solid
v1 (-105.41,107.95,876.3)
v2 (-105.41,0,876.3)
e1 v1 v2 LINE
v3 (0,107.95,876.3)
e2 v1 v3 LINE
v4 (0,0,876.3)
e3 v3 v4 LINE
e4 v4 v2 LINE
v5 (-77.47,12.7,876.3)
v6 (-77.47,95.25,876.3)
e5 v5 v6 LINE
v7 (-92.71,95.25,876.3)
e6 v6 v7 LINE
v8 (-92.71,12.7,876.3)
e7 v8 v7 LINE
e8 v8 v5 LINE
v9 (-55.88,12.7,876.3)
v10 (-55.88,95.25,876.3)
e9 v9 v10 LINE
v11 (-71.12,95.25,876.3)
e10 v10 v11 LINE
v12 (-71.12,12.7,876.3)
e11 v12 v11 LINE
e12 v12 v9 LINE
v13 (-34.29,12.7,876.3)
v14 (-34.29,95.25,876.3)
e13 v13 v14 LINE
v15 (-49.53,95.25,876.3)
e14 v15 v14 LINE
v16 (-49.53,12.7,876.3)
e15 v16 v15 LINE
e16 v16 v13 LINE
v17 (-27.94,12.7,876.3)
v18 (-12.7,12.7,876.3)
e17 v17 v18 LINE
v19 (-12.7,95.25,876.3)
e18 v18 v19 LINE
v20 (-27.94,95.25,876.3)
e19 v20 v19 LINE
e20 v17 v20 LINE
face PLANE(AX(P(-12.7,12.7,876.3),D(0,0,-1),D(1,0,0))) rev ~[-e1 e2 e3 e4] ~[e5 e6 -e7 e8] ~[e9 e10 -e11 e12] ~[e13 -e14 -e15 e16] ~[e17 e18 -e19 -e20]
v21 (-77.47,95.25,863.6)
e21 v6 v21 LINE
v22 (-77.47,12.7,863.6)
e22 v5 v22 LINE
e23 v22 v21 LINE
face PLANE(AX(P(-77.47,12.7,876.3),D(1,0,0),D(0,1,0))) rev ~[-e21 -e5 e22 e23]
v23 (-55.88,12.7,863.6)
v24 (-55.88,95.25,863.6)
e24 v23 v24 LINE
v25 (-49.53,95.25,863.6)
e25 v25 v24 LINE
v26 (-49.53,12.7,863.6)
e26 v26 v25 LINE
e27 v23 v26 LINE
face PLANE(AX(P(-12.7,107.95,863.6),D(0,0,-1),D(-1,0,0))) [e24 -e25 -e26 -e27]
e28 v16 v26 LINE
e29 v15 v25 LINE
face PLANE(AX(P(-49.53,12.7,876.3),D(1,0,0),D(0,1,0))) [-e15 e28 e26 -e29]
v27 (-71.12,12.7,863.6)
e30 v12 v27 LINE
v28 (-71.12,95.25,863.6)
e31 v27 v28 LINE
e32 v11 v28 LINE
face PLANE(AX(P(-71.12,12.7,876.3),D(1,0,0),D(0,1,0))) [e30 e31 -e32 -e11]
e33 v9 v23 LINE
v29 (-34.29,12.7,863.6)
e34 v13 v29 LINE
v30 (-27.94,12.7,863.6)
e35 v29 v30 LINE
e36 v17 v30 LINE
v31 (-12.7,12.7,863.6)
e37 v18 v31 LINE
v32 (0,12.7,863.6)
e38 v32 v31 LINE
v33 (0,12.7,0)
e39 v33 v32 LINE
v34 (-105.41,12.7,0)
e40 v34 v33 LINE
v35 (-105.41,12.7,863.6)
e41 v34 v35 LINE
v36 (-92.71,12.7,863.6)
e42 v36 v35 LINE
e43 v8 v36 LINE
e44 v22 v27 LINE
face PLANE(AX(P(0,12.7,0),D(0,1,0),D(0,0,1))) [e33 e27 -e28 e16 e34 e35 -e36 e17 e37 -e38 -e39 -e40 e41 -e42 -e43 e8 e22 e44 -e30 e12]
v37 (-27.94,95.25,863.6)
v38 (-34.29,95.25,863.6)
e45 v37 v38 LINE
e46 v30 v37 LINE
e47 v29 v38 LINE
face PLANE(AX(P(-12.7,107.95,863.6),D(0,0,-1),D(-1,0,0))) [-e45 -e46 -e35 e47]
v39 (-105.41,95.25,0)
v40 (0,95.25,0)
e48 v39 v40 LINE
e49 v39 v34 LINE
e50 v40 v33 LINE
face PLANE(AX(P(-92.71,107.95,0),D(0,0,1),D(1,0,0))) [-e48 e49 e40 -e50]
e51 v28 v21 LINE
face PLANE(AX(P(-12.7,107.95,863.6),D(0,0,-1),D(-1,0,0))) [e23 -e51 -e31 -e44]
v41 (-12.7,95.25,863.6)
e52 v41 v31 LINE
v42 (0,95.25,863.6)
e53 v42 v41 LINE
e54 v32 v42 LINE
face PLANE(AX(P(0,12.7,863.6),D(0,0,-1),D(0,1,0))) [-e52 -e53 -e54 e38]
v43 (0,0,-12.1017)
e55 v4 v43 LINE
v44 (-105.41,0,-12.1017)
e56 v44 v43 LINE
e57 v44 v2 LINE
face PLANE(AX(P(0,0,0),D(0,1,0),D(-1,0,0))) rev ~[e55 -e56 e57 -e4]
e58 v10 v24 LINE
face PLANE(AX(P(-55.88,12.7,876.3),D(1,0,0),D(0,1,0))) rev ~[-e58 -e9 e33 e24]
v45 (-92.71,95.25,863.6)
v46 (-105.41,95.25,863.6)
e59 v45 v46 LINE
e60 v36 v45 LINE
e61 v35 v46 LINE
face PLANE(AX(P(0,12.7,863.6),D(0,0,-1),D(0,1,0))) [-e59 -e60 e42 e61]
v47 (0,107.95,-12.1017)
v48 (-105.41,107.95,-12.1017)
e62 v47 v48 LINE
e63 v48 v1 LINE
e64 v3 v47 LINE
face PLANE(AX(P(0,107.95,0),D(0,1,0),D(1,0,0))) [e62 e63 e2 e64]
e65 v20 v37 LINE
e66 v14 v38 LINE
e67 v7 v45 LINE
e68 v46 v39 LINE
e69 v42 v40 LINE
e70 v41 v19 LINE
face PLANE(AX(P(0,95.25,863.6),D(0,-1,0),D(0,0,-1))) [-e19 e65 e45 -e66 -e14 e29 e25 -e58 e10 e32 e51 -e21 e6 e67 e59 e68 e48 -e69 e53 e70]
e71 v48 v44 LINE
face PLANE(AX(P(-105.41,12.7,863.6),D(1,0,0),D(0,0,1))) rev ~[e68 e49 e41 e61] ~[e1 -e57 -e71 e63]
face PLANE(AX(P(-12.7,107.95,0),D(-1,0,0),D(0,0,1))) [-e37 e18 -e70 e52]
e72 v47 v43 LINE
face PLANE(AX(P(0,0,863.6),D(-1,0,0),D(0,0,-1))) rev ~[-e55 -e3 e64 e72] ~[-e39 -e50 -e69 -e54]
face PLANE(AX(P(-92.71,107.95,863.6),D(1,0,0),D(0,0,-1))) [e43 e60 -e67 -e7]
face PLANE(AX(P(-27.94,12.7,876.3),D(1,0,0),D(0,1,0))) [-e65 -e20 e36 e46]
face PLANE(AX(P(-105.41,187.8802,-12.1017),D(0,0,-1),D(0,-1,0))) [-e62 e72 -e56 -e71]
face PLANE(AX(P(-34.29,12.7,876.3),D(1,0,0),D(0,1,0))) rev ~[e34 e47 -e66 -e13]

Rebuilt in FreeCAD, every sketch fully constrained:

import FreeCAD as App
import Part
import Sketcher
Q = App.Units.Quantity


def add_polygon(sketch, points):
    """Adds a closed chain of lines whose ends are joined by coincident constraints."""
    first, n = sketch.GeometryCount, len(points)
    for a, b in zip(points, points[1:] + points[:1]):
        sketch.addGeometry(Part.LineSegment(App.Vector(*a, 0), App.Vector(*b, 0)), False)
    for i in range(n):
        sketch.addConstraint(Sketcher.Constraint("Coincident", first + i, 2, first + (i + 1) % n, 1))

doc = App.newDocument("Part")
body = doc.addObject("PartDesign::Body", "Body")
body.AllowCompound = True

# Sketch on XZ plane
sketch1 = body.newObject("Sketcher::SketchObject", "Sketch")
sketch1.AttachmentSupport = (doc.getObject("XZ_Plane"), [""])
sketch1.MapMode = "FlatFace"
add_polygon(sketch1, [(0, 863.6), (0, 0), (-105.41, 0), (-105.41, 863.6)])  # lines 0-3
sketch1.addConstraint(Sketcher.Constraint("Vertical", 0))
sketch1.addConstraint(Sketcher.Constraint("Horizontal", 1))
sketch1.addConstraint(Sketcher.Constraint("Vertical", 2))
sketch1.addConstraint(Sketcher.Constraint("Horizontal", 3))
sketch1.addConstraint(Sketcher.Constraint("Coincident", 0, 2, -1, 1))
sketch1.addConstraint(Sketcher.Constraint("DistanceY", 0, 2, 0, 1, Q("34 in")))
sketch1.addConstraint(Sketcher.Constraint("DistanceX", 1, 2, 1, 1, Q("4.15 in")))
pad1 = body.newObject("PartDesign::Pad", "Pad")
pad1.Profile = sketch1
pad1.Length = Q("0.5 in")
pad1.Reversed = True

# Sketch on XZ plane
sketch2 = body.newObject("Sketcher::SketchObject", "Sketch001")
sketch2.AttachmentSupport = (doc.getObject("XZ_Plane"), [""])
sketch2.MapMode = "FlatFace"
sketch2.AttachmentOffset = App.Placement(App.Vector(0, 0, -0.5 * 25.4), App.Rotation())
add_polygon(sketch2, [(0, -12.7), (-105.41, -12.7), (-105.41, 876.3), (0, 876.3)])  # lines 0-3
add_polygon(sketch2, [(-12.7, 0), (-12.7, 863.6), (-92.71, 863.6), (-92.71, 0)])  # lines 4-7
sketch2.addConstraint(Sketcher.Constraint("Horizontal", 0))
sketch2.addConstraint(Sketcher.Constraint("Vertical", 1))
sketch2.addConstraint(Sketcher.Constraint("Horizontal", 2))
sketch2.addConstraint(Sketcher.Constraint("Vertical", 3))
sketch2.addConstraint(Sketcher.Constraint("Vertical", 4))
sketch2.addConstraint(Sketcher.Constraint("Horizontal", 5))
sketch2.addConstraint(Sketcher.Constraint("Vertical", 6))
sketch2.addConstraint(Sketcher.Constraint("Horizontal", 7))
sketch2.addConstraint(Sketcher.Constraint("PointOnObject", 2, 2, -2))
sketch2.addConstraint(Sketcher.Constraint("PointOnObject", 6, 2, -1))
sketch2.addConstraint(Sketcher.Constraint("DistanceY", 0, 2, -1, 1, Q("0.5 in")))
sketch2.addConstraint(Sketcher.Constraint("DistanceX", 4, 2, -1, 1, Q("0.5 in")))
sketch2.addConstraint(Sketcher.Constraint("DistanceY", 4, 2, 2, 2, Q("0.5 in")))
sketch2.addConstraint(Sketcher.Constraint("DistanceX", 1, 2, 5, 2, Q("0.5 in")))
sketch2.addConstraint(Sketcher.Constraint("DistanceY", 1, 1, 1, 2, Q("35 in")))
sketch2.addConstraint(Sketcher.Constraint("DistanceX", 0, 2, 0, 1, Q("4.15 in")))
pad2 = body.newObject("PartDesign::Pad", "Pad001")
pad2.Profile = sketch2
pad2.Type = "TwoLengths"
pad2.Length = Q("3.75 in")
pad2.Length2 = Q("0.5 in")
pad2.Reversed = True

# Sketch on XY plane
sketch3 = body.newObject("Sketcher::SketchObject", "Sketch002")
sketch3.AttachmentSupport = (doc.getObject("XY_Plane"), [""])
sketch3.MapMode = "FlatFace"
sketch3.AttachmentOffset = App.Placement(App.Vector(0, 0, 34.5 * 25.4), App.Rotation())
add_polygon(sketch3, [(-92.71, 95.25), (-92.71, 12.7), (-77.47, 12.7), (-77.47, 95.25)])  # lines 0-3
add_polygon(sketch3, [(-49.53, 95.25), (-49.53, 12.7), (-34.29, 12.7), (-34.29, 95.25)])  # lines 4-7
add_polygon(sketch3, [(-71.12, 95.25), (-71.12, 12.7), (-55.88, 12.7), (-55.88, 95.25)])  # lines 8-11
add_polygon(sketch3, [(-27.94, 95.25), (-27.94, 12.7), (-12.7, 12.7), (-12.7, 95.25)])  # lines 12-15
sketch3.addConstraint(Sketcher.Constraint("Vertical", 0))
sketch3.addConstraint(Sketcher.Constraint("Horizontal", 1))
sketch3.addConstraint(Sketcher.Constraint("Vertical", 2))
sketch3.addConstraint(Sketcher.Constraint("Horizontal", 3))
sketch3.addConstraint(Sketcher.Constraint("Vertical", 4))
sketch3.addConstraint(Sketcher.Constraint("Horizontal", 5))
sketch3.addConstraint(Sketcher.Constraint("Vertical", 6))
sketch3.addConstraint(Sketcher.Constraint("Horizontal", 7))
sketch3.addConstraint(Sketcher.Constraint("Vertical", 8))
sketch3.addConstraint(Sketcher.Constraint("Horizontal", 9))
sketch3.addConstraint(Sketcher.Constraint("Vertical", 10))
sketch3.addConstraint(Sketcher.Constraint("Horizontal", 11))
sketch3.addConstraint(Sketcher.Constraint("Vertical", 12))
sketch3.addConstraint(Sketcher.Constraint("Horizontal", 13))
sketch3.addConstraint(Sketcher.Constraint("Vertical", 14))
sketch3.addConstraint(Sketcher.Constraint("Horizontal", 15))
sketch3.addConstraint(Sketcher.Constraint("Horizontal", 1, 2, 4, 2))
sketch3.addConstraint(Sketcher.Constraint("Horizontal", 3, 2, 6, 2))
sketch3.addConstraint(Sketcher.Constraint("Horizontal", 5, 2, 8, 2))
sketch3.addConstraint(Sketcher.Constraint("Horizontal", 7, 2, 10, 2))
sketch3.addConstraint(Sketcher.Constraint("Horizontal", 9, 2, 12, 2))
sketch3.addConstraint(Sketcher.Constraint("Horizontal", 11, 2, 14, 2))
sketch3.addConstraint(Sketcher.Constraint("Equal", 3, 5))
sketch3.addConstraint(Sketcher.Constraint("Equal", 7, 9))
sketch3.addConstraint(Sketcher.Constraint("Equal", 11, 13))
sketch3.addConstraint(Sketcher.Constraint("DistanceX", 1, 1, 1, 2, Q("0.6 in")))
sketch3.addConstraint(Sketcher.Constraint("DistanceY", 0, 2, 0, 1, Q("3.25 in")))
sketch3.addConstraint(Sketcher.Constraint("DistanceX", 1, 2, 8, 2, Q("0.25 in")))
sketch3.addConstraint(Sketcher.Constraint("DistanceX", 9, 2, 4, 2, Q("0.25 in")))
sketch3.addConstraint(Sketcher.Constraint("DistanceX", 5, 2, 12, 2, Q("0.25 in")))
sketch3.addConstraint(Sketcher.Constraint("DistanceY", -1, 1, 0, 2, Q("0.5 in")))
sketch3.addConstraint(Sketcher.Constraint("DistanceX", 8, 2, -1, 1, Q("2.8 in")))
pocket1 = body.newObject("PartDesign::Pocket", "Pocket")
pocket1.Profile = sketch3
pocket1.Length = Q("3.75 in")

# Sketch on XY plane
sketch4 = body.newObject("Sketcher::SketchObject", "Sketch003")
sketch4.AttachmentSupport = (doc.getObject("XY_Plane"), [""])
sketch4.MapMode = "FlatFace"
sketch4.AttachmentOffset = App.Placement(App.Vector(0, 0, 34.5 * 25.4), App.Rotation())
sketch4.addGeometry(Part.Circle(App.Vector(-52.705, 134.3025, 0), App.Vector(0, 0, 1), 26.3525), False)
sketch4.addConstraint(Sketcher.Constraint("Diameter", 0, Q("2.075 in")))
sketch4.addConstraint(Sketcher.Constraint("DistanceX", 0, 3, -1, 1, Q("2.075 in")))
sketch4.addConstraint(Sketcher.Constraint("DistanceY", -1, 1, 0, 3, Q("5.2875 in")))
pad3 = body.newObject("PartDesign::Pad", "Pad002")
pad3.Profile = sketch4
pad3.Length = Q("50 in")
pad3.Reversed = True

# Sketch on YZ plane
sketch5 = body.newObject("Sketcher::SketchObject", "Sketch004")
sketch5.AttachmentSupport = (doc.getObject("YZ_Plane"), [""])
sketch5.MapMode = "FlatFace"
add_polygon(sketch5, [(19.05, 749.3), (19.05, 558.8), (44.45, 552.45), (44.45, 749.3)])  # lines 0-3
sketch5.addConstraint(Sketcher.Constraint("Vertical", 0))
sketch5.addConstraint(Sketcher.Constraint("Vertical", 2))
sketch5.addConstraint(Sketcher.Constraint("Horizontal", 3))
sketch5.addConstraint(Sketcher.Constraint("DistanceX", 3, 2, 3, 1, Q("1 in")))
sketch5.addConstraint(Sketcher.Constraint("DistanceY", 0, 2, 0, 1, Q("7.5 in")))
sketch5.addConstraint(Sketcher.Constraint("DistanceY", 2, 1, 2, 2, Q("7.75 in")))
sketch5.addConstraint(Sketcher.Constraint("DistanceX", -1, 1, 0, 2, Q("0.75 in")))
sketch5.addConstraint(Sketcher.Constraint("DistanceY", -1, 1, 0, 2, Q("22 in")))
pocket2 = body.newObject("PartDesign::Pocket", "Pocket001")
pocket2.Profile = sketch5
pocket2.Length = Q("0.6 in")

# Sketch on XZ plane
sketch6 = body.newObject("Sketcher::SketchObject", "Sketch005")
sketch6.AttachmentSupport = (doc.getObject("XZ_Plane"), [""])
sketch6.MapMode = "FlatFace"
sketch6.AttachmentOffset = App.Placement(App.Vector(0, 0, -4.25 * 25.4), App.Rotation())
add_polygon(sketch6, [(-105.41, 876.3), (0, 876.3), (0, -12.7), (-105.41, -12.7)])  # lines 0-3
sketch6.addConstraint(Sketcher.Constraint("Horizontal", 0))
sketch6.addConstraint(Sketcher.Constraint("Vertical", 1))
sketch6.addConstraint(Sketcher.Constraint("Horizontal", 2))
sketch6.addConstraint(Sketcher.Constraint("Vertical", 3))
sketch6.addConstraint(Sketcher.Constraint("PointOnObject", 0, 2, -2))
sketch6.addConstraint(Sketcher.Constraint("DistanceY", 1, 2, 1, 1, Q("35 in")))
sketch6.addConstraint(Sketcher.Constraint("DistanceX", 0, 1, 0, 2, Q("4.15 in")))
sketch6.addConstraint(Sketcher.Constraint("DistanceY", -1, 1, 0, 2, Q("34.5 in")))
pad4 = body.newObject("PartDesign::Pad", "Pad003")
pad4.Profile = sketch6
pad4.Length = Q("0.5 in")

# Sketch on XY plane
sketch7 = body.newObject("Sketcher::SketchObject", "Sketch006")
sketch7.AttachmentSupport = (doc.getObject("XY_Plane"), [""])
sketch7.MapMode = "FlatFace"
sketch7.AttachmentOffset = App.Placement(App.Vector(0, 0, 34.5 * 25.4), App.Rotation())
add_polygon(sketch7, [(-92.2159, 374.2965), (-92.2159, 107.95), (248.88, 107.95), (248.88, 374.2965)])  # lines 0-3
sketch7.addConstraint(Sketcher.Constraint("Vertical", 0))
sketch7.addConstraint(Sketcher.Constraint("Horizontal", 1))
sketch7.addConstraint(Sketcher.Constraint("Vertical", 2))
sketch7.addConstraint(Sketcher.Constraint("Horizontal", 3))
sketch7.addConstraint(Sketcher.Constraint("DistanceY", -1, 1, 0, 2, Q("4.25 in")))
sketch7.addConstraint(Sketcher.Constraint("DistanceX", 1, 1, 1, 2, Q("341.096 mm")))
sketch7.addConstraint(Sketcher.Constraint("DistanceY", 0, 2, 0, 1, Q("266.3465 mm")))
sketch7.addConstraint(Sketcher.Constraint("DistanceX", 0, 2, -1, 1, Q("92.216 mm")))
pocket3 = body.newObject("PartDesign::Pocket", "Pocket002")
pocket3.Profile = sketch7
pocket3.Type = "ThroughAll"

# Sketch on XZ plane
sketch8 = body.newObject("Sketcher::SketchObject", "Sketch007")
sketch8.AttachmentSupport = (doc.getObject("XZ_Plane"), [""])
sketch8.MapMode = "FlatFace"
sketch8.AttachmentOffset = App.Placement(App.Vector(0, 0, -4.25 * 25.4), App.Rotation())
add_polygon(sketch8, [(-12.7, 0), (-92.71, 0), (-92.71, 863.6), (-12.7, 863.6)])  # lines 0-3
sketch8.addConstraint(Sketcher.Constraint("Horizontal", 0))
sketch8.addConstraint(Sketcher.Constraint("Vertical", 1))
sketch8.addConstraint(Sketcher.Constraint("Horizontal", 2))
sketch8.addConstraint(Sketcher.Constraint("Vertical", 3))
sketch8.addConstraint(Sketcher.Constraint("PointOnObject", 0, 2, -1))
sketch8.addConstraint(Sketcher.Constraint("DistanceX", 2, 2, -1, 1, Q("0.5 in")))
sketch8.addConstraint(Sketcher.Constraint("DistanceY", 1, 1, 1, 2, Q("34 in")))
sketch8.addConstraint(Sketcher.Constraint("DistanceX", 0, 2, 0, 1, Q("3.15 in")))
pocket4 = body.newObject("PartDesign::Pocket", "Pocket003")
pocket4.Profile = sketch8
pocket4.Length = Q("50 in")
pocket4.Reversed = True

# Sketch on YZ plane
sketch9 = body.newObject("Sketcher::SketchObject", "Sketch008")
sketch9.AttachmentSupport = (doc.getObject("YZ_Plane"), [""])
sketch9.MapMode = "FlatFace"
add_polygon(sketch9, [(12.7, 0), (95.25, 0), (95.25, 863.6), (12.7, 863.6)])  # lines 0-3
add_polygon(sketch9, [(44.45, 552.45), (19.05, 558.8), (19.05, 749.3), (44.45, 749.3)])  # lines 4-7
sketch9.addConstraint(Sketcher.Constraint("Horizontal", 0))
sketch9.addConstraint(Sketcher.Constraint("Vertical", 1))
sketch9.addConstraint(Sketcher.Constraint("Horizontal", 2))
sketch9.addConstraint(Sketcher.Constraint("Vertical", 3))
sketch9.addConstraint(Sketcher.Constraint("Vertical", 5))
sketch9.addConstraint(Sketcher.Constraint("Horizontal", 6))
sketch9.addConstraint(Sketcher.Constraint("Vertical", 7))
sketch9.addConstraint(Sketcher.Constraint("PointOnObject", 0, 2, -1))
sketch9.addConstraint(Sketcher.Constraint("DistanceX", -1, 1, 2, 2, Q("0.5 in")))
sketch9.addConstraint(Sketcher.Constraint("DistanceX", 6, 1, 6, 2, Q("1 in")))
sketch9.addConstraint(Sketcher.Constraint("DistanceY", 1, 1, 1, 2, Q("34 in")))
sketch9.addConstraint(Sketcher.Constraint("DistanceY", 5, 1, 5, 2, Q("7.5 in")))
sketch9.addConstraint(Sketcher.Constraint("DistanceY", -1, 1, 4, 2, Q("22 in")))
sketch9.addConstraint(Sketcher.Constraint("DistanceX", 4, 2, 1, 2, Q("3 in")))
sketch9.addConstraint(Sketcher.Constraint("DistanceX", 0, 1, 0, 2, Q("3.25 in")))
sketch9.addConstraint(Sketcher.Constraint("DistanceY", 7, 2, 7, 1, Q("7.75 in")))
pocket5 = body.newObject("PartDesign::Pocket", "Pocket004")
pocket5.Profile = sketch9
pocket5.Length = Q("50 in")

# Sketch on YZ plane
sketch10 = body.newObject("Sketcher::SketchObject", "Sketch009")
sketch10.AttachmentSupport = (doc.getObject("YZ_Plane"), [""])
sketch10.MapMode = "FlatFace"
sketch10.AttachmentOffset = App.Placement(App.Vector(0, 0, -4.15 * 25.4), App.Rotation())
add_polygon(sketch10, [(52.9149, 772.5092), (52.9149, 542.0663), (16.196, 542.0663), (16.196, 772.5092)])  # lines 0-3
sketch10.addConstraint(Sketcher.Constraint("Vertical", 0))
sketch10.addConstraint(Sketcher.Constraint("Horizontal", 1))
sketch10.addConstraint(Sketcher.Constraint("Vertical", 2))
sketch10.addConstraint(Sketcher.Constraint("Horizontal", 3))
sketch10.addConstraint(Sketcher.Constraint("DistanceX", 1, 2, 1, 1, Q("36.719 mm")))
sketch10.addConstraint(Sketcher.Constraint("DistanceY", 0, 2, 0, 1, Q("230.443 mm")))
sketch10.addConstraint(Sketcher.Constraint("DistanceY", -1, 1, 0, 2, Q("21.3412 in")))
sketch10.addConstraint(Sketcher.Constraint("DistanceX", -1, 1, 0, 2, Q("52.915 mm")))
pocket6 = body.newObject("PartDesign::Pocket", "Pocket005")
pocket6.Profile = sketch10
pocket6.Length = Q("50 in")
pocket6.Reversed = True

# Sketch on XY plane
sketch11 = body.newObject("Sketcher::SketchObject", "Sketch010")
sketch11.AttachmentSupport = (doc.getObject("XY_Plane"), [""])
sketch11.MapMode = "FlatFace"
sketch11.AttachmentOffset = App.Placement(App.Vector(0, 0, 34.5 * 25.4), App.Rotation())
add_polygon(sketch11, [(-105.41, 0), (0, 0), (0, 12.7), (-105.41, 12.7)])  # lines 0-3
add_polygon(sketch11, [(-105.41, 95.25), (0, 95.25), (0, 107.95), (-105.41, 107.95)])  # lines 4-7
sketch11.addConstraint(Sketcher.Constraint("Horizontal", 0))
sketch11.addConstraint(Sketcher.Constraint("Vertical", 1))
sketch11.addConstraint(Sketcher.Constraint("Horizontal", 2))
sketch11.addConstraint(Sketcher.Constraint("Vertical", 3))
sketch11.addConstraint(Sketcher.Constraint("Horizontal", 4))
sketch11.addConstraint(Sketcher.Constraint("Vertical", 5))
sketch11.addConstraint(Sketcher.Constraint("Horizontal", 6))
sketch11.addConstraint(Sketcher.Constraint("Vertical", 7))
sketch11.addConstraint(Sketcher.Constraint("Coincident", 0, 2, -1, 1))
sketch11.addConstraint(Sketcher.Constraint("PointOnObject", 4, 2, -2))
sketch11.addConstraint(Sketcher.Constraint("Vertical", 3, 2, 6, 2))
sketch11.addConstraint(Sketcher.Constraint("Equal", 3, 5))
sketch11.addConstraint(Sketcher.Constraint("DistanceY", 1, 1, 1, 2, Q("0.5 in")))
sketch11.addConstraint(Sketcher.Constraint("DistanceX", 0, 1, 0, 2, Q("4.15 in")))
sketch11.addConstraint(Sketcher.Constraint("DistanceY", -1, 1, 4, 2, Q("3.75 in")))
pad5 = body.newObject("PartDesign::Pad", "Pad004")
pad5.Profile = sketch11
pad5.Length = Q("50 in")
pad5.Reversed = True

# Sketch on YZ plane
sketch12 = body.newObject("Sketcher::SketchObject", "Sketch011")
sketch12.AttachmentSupport = (doc.getObject("YZ_Plane"), [""])
sketch12.MapMode = "FlatFace"
sketch12.AttachmentOffset = App.Placement(App.Vector(0, 0, -4.15 * 25.4), App.Rotation())
add_polygon(sketch12, [(0, -594.544), (0, -12.1017), (187.8802, -12.1017), (187.8802, -594.544)])  # lines 0-3
sketch12.addConstraint(Sketcher.Constraint("Vertical", 0))
sketch12.addConstraint(Sketcher.Constraint("Horizontal", 1))
sketch12.addConstraint(Sketcher.Constraint("Vertical", 2))
sketch12.addConstraint(Sketcher.Constraint("Horizontal", 3))
sketch12.addConstraint(Sketcher.Constraint("PointOnObject", 0, 2, -2))
sketch12.addConstraint(Sketcher.Constraint("DistanceY", 0, 1, 0, 2, Q("22.9308 in")))
sketch12.addConstraint(Sketcher.Constraint("DistanceX", 1, 1, 1, 2, Q("187.8802 mm")))
sketch12.addConstraint(Sketcher.Constraint("DistanceY", 0, 2, -1, 1, Q("12.1017 mm")))
pocket7 = body.newObject("PartDesign::Pocket", "Pocket006")
pocket7.Profile = sketch12
pocket7.Length = Q("50 in")
pocket7.Reversed = True

doc.recompute()
